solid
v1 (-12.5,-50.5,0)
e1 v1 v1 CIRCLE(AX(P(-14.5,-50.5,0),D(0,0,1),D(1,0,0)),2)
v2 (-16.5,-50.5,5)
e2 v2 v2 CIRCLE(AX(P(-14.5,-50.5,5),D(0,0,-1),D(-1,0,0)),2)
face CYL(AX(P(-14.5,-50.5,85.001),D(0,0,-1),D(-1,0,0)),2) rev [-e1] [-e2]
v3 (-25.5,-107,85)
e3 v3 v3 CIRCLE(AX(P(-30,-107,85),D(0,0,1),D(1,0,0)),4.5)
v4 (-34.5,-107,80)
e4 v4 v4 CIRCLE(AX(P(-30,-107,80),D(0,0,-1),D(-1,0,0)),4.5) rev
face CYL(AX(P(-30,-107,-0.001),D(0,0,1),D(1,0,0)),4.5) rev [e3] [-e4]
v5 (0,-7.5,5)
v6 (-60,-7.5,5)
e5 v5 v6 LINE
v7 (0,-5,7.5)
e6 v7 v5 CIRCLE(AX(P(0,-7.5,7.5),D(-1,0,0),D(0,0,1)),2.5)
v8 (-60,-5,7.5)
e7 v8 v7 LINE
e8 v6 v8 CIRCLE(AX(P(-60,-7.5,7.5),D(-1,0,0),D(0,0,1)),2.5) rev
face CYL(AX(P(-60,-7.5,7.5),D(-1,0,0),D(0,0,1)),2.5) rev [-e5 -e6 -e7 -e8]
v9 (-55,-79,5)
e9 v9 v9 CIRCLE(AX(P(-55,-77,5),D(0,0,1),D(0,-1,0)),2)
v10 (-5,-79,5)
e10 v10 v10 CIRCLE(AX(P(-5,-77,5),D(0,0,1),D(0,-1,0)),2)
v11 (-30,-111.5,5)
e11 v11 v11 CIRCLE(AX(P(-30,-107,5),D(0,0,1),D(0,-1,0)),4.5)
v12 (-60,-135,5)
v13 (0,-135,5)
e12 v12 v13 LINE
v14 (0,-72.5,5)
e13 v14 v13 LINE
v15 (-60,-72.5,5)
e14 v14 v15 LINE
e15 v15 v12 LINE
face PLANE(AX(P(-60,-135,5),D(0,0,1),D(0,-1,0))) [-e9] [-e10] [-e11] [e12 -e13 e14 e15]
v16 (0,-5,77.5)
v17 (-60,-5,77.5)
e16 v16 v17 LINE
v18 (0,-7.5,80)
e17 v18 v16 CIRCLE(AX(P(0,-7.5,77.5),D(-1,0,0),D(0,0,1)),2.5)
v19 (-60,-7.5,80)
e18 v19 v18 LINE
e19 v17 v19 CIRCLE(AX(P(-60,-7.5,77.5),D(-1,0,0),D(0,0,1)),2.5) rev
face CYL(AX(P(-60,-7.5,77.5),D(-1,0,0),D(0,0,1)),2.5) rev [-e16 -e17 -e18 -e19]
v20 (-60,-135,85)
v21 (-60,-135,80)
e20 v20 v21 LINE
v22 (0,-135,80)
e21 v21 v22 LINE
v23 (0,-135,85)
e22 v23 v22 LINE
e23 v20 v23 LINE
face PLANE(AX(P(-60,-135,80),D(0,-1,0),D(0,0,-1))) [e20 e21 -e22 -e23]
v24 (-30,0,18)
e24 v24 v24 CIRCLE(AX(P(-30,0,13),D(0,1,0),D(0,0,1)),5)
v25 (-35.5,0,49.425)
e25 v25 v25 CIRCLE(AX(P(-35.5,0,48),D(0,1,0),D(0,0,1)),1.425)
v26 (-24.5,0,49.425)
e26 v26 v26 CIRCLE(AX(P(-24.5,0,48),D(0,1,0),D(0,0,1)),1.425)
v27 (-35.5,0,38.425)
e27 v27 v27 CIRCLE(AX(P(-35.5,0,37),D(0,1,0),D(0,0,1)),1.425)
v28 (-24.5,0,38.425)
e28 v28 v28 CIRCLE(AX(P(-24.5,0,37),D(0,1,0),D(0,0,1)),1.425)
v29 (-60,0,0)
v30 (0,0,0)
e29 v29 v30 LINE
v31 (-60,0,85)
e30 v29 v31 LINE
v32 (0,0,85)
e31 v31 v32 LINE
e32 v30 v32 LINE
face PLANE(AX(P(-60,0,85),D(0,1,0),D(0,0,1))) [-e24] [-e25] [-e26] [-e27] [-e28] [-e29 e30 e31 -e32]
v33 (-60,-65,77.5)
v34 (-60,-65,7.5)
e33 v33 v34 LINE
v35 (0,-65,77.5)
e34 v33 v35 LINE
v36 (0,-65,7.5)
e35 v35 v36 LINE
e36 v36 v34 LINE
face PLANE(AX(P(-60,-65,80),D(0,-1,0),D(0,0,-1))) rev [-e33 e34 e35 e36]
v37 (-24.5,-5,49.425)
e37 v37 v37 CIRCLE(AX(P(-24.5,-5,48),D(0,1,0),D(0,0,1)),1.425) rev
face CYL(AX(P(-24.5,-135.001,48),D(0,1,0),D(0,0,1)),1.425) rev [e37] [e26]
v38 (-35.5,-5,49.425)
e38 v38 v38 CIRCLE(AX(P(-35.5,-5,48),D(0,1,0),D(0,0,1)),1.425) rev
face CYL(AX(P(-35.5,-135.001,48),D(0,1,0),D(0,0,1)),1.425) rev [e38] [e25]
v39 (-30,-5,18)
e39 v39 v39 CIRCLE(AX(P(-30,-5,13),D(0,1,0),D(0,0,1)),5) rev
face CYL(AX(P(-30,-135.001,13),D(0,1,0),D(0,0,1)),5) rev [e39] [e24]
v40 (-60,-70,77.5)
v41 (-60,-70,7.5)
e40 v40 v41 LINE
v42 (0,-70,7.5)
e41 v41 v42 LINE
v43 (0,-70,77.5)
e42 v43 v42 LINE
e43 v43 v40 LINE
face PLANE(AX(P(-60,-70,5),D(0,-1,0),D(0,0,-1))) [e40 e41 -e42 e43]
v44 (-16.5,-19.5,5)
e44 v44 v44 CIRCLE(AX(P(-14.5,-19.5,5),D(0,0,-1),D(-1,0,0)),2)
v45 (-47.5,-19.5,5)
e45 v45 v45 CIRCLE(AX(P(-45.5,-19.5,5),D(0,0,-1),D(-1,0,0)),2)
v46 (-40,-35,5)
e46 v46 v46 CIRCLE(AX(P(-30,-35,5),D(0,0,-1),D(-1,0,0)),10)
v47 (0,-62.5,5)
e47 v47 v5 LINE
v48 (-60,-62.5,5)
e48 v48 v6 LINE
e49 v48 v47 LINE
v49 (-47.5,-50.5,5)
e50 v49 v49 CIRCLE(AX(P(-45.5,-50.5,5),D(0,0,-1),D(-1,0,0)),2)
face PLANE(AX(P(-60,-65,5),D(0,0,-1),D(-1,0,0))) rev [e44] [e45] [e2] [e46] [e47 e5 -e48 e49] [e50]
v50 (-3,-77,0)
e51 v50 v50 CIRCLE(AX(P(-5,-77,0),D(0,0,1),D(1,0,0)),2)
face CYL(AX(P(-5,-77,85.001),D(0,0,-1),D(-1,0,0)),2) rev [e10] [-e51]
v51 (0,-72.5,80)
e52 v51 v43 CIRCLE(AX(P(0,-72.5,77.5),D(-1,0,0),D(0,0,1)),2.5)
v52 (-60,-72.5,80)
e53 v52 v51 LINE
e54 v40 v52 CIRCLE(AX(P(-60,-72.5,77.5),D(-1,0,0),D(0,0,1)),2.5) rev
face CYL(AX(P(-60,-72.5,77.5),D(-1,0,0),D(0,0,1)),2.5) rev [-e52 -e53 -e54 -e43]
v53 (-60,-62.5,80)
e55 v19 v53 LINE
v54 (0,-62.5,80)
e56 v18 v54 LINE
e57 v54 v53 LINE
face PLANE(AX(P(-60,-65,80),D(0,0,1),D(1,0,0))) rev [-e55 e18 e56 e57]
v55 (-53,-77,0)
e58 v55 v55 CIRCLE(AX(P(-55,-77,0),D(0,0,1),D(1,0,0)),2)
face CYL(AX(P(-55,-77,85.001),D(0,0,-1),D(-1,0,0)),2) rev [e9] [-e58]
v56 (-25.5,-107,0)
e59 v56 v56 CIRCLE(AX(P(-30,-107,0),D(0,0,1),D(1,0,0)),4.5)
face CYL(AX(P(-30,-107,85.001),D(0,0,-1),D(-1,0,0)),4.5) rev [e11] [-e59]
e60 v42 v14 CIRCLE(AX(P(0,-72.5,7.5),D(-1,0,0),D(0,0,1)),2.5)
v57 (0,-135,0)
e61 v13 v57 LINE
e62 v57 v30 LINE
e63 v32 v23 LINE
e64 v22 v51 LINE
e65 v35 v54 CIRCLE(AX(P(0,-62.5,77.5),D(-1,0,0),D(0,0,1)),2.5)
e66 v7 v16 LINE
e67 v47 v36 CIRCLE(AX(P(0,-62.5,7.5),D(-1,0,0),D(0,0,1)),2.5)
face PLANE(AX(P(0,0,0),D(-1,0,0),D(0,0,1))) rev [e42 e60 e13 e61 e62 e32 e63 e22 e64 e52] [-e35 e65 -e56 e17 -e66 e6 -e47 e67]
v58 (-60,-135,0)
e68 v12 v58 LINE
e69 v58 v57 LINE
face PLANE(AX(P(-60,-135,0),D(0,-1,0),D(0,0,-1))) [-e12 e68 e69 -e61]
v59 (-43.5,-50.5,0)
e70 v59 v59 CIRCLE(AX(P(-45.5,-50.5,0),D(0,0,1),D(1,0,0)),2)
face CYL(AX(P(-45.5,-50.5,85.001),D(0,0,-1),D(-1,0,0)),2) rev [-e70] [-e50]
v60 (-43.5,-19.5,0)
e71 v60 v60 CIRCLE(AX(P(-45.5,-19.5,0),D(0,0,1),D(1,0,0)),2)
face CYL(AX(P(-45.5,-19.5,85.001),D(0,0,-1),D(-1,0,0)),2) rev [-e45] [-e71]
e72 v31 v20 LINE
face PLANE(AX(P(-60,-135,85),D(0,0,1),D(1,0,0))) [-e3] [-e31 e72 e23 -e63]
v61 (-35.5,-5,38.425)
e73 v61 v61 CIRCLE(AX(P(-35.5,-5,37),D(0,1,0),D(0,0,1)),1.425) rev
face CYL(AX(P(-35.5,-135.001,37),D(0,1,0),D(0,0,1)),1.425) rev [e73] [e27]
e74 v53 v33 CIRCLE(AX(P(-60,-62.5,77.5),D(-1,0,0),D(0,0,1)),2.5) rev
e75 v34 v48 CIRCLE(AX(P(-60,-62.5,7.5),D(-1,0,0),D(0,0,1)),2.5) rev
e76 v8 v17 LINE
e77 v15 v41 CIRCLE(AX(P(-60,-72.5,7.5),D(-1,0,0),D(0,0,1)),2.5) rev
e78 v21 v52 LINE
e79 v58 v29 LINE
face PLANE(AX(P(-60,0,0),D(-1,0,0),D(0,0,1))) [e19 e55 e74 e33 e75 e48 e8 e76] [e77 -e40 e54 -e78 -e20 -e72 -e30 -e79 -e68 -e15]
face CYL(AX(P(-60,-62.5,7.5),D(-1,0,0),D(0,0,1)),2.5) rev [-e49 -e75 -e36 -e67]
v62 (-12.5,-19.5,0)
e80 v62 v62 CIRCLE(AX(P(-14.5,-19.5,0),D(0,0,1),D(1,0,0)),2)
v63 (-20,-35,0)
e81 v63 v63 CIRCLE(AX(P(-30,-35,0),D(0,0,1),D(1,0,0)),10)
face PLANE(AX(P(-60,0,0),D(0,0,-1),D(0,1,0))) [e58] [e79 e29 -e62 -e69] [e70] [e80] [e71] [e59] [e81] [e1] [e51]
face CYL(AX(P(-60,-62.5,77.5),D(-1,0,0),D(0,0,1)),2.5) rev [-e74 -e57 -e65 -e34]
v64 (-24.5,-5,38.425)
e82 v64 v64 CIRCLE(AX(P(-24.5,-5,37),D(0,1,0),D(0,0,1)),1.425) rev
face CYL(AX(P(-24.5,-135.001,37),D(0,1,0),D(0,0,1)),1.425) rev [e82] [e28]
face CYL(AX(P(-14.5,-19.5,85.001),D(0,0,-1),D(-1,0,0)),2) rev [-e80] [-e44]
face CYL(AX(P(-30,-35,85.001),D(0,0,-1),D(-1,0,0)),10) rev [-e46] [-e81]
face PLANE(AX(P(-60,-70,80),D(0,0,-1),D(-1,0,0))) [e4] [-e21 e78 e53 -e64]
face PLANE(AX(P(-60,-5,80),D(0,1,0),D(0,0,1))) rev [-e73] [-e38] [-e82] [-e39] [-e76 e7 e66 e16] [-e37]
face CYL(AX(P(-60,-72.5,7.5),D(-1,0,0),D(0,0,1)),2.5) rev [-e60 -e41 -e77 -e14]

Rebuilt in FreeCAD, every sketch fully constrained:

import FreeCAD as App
import Part
import Sketcher
from FreeCAD import Vector


def edges_at(feature, points):
    """Names of the edges that pass closest to the given points."""
    edges = feature.Shape.Edges
    near = lambda p: min(range(len(edges)), key=lambda i: edges[i].distToShape(Part.Vertex(*p))[0])
    return sorted({f"Edge{near(p) + 1}" for p in points})


def add_polygon(sketch, points):
    """Adds a closed chain of lines whose ends are joined by coincident constraints."""
    first, n = sketch.GeometryCount, len(points)
    for a, b in zip(points, points[1:] + points[:1]):
        sketch.addGeometry(Part.LineSegment(App.Vector(*a, 0), App.Vector(*b, 0)), False)
    for i in range(n):
        sketch.addConstraint(Sketcher.Constraint("Coincident", first + i, 2, first + (i + 1) % n, 1))

doc = App.newDocument("Part")
body = doc.addObject("PartDesign::Body", "Body")

# Sketch on YZ plane
sketch1 = body.newObject("Sketcher::SketchObject", "Sketch")
sketch1.AttachmentSupport = (doc.getObject("YZ_Plane"), [""])
sketch1.MapMode = "FlatFace"
add_polygon(sketch1, [(-135, 0), (0, 0), (0, 85), (-135, 85), (-135, 80), (-70, 80), (-70, 5), (-135, 5)])  # lines 0-7
sketch1.addConstraint([
    Sketcher.Constraint("Horizontal", 0),
    Sketcher.Constraint("Vertical", 1),
    Sketcher.Constraint("Horizontal", 2),
    Sketcher.Constraint("Vertical", 3),
    Sketcher.Constraint("Horizontal", 4),
    Sketcher.Constraint("Vertical", 5),
    Sketcher.Constraint("Horizontal", 6),
    Sketcher.Constraint("Vertical", 7),
    Sketcher.Constraint("Coincident", 0, 2, -1, 1),
    Sketcher.Constraint("Vertical", 3, 2, 6, 2),
    Sketcher.Constraint("Equal", 3, 7),
    Sketcher.Constraint("DistanceX", 0, 1, 0, 2, 135.0),
    Sketcher.Constraint("DistanceX", 4, 1, 4, 2, 65.0),
    Sketcher.Constraint("DistanceY", 1, 1, 1, 2, 85.0),
    Sketcher.Constraint("DistanceY", 3, 2, 3, 1, 5.0),
])
pad1 = body.newObject("PartDesign::Pad", "Pad")
pad1.Profile = sketch1
pad1.Length = 60
pad1.Reversed = True

# Sketch on YZ plane
sketch2 = body.newObject("Sketcher::SketchObject", "Sketch001")
sketch2.AttachmentSupport = (doc.getObject("YZ_Plane"), [""])
sketch2.MapMode = "FlatFace"
add_polygon(sketch2, [(-5, 80), (-65, 80), (-65, 5), (-5, 5)])  # lines 0-3
sketch2.addConstraint([
    Sketcher.Constraint("Horizontal", 0),
    Sketcher.Constraint("Vertical", 1),
    Sketcher.Constraint("Horizontal", 2),
    Sketcher.Constraint("Vertical", 3),
    Sketcher.Constraint("DistanceX", 0, 2, 0, 1, 60.0),
    Sketcher.Constraint("DistanceY", 1, 2, 1, 1, 75.0),
    Sketcher.Constraint("DistanceX", 0, 2, -1, 1, 65.0),
    Sketcher.Constraint("DistanceY", -1, 1, 0, 2, 80.0),
])
pocket1 = body.newObject("PartDesign::Pocket", "Pocket")
pocket1.Profile = sketch2
pocket1.Length = 60

# Sketch on XZ plane
sketch3 = body.newObject("Sketcher::SketchObject", "Sketch002")
sketch3.AttachmentSupport = (doc.getObject("XZ_Plane"), [""])
sketch3.MapMode = "FlatFace"
sketch3.addGeometry(Part.Circle(Vector(-35.5, 37, 0), Vector(0, 0, 1), 1.425), False)
sketch3.addConstraint([
    Sketcher.Constraint("Diameter", 0, 2.85),
    Sketcher.Constraint("DistanceY", -1, 1, 0, 3, 37.0),
    Sketcher.Constraint("DistanceX", 0, 3, -1, 1, 35.5),
])
pocket2 = body.newObject("PartDesign::Pocket", "Pocket001")
pocket2.Profile = sketch3
pocket2.Type = "UpToFirst"
pocket2.Reversed = True

# Sketch on XZ plane
sketch4 = body.newObject("Sketcher::SketchObject", "Sketch003")
sketch4.AttachmentSupport = (doc.getObject("XZ_Plane"), [""])
sketch4.MapMode = "FlatFace"
sketch4.addGeometry(Part.Circle(Vector(-24.5, 37, 0), Vector(0, 0, 1), 1.425), False)
sketch4.addConstraint([
    Sketcher.Constraint("Diameter", 0, 2.85),
    Sketcher.Constraint("DistanceY", -1, 1, 0, 3, 37.0),
    Sketcher.Constraint("DistanceX", 0, 3, -1, 1, 24.5),
])
pocket3 = body.newObject("PartDesign::Pocket", "Pocket002")
pocket3.Profile = sketch4
pocket3.Type = "UpToFirst"
pocket3.Reversed = True

# Sketch on XZ plane
sketch5 = body.newObject("Sketcher::SketchObject", "Sketch004")
sketch5.AttachmentSupport = (doc.getObject("XZ_Plane"), [""])
sketch5.MapMode = "FlatFace"
sketch5.addGeometry(Part.Circle(Vector(-24.5, 48, 0), Vector(0, 0, 1), 1.425), False)
sketch5.addConstraint([
    Sketcher.Constraint("Diameter", 0, 2.85),
    Sketcher.Constraint("DistanceY", -1, 1, 0, 3, 48.0),
    Sketcher.Constraint("DistanceX", 0, 3, -1, 1, 24.5),
])
pocket4 = body.newObject("PartDesign::Pocket", "Pocket003")
pocket4.Profile = sketch5
pocket4.Type = "UpToFirst"
pocket4.Reversed = True

# Sketch on XZ plane
sketch6 = body.newObject("Sketcher::SketchObject", "Sketch005")
sketch6.AttachmentSupport = (doc.getObject("XZ_Plane"), [""])
sketch6.MapMode = "FlatFace"
sketch6.addGeometry(Part.Circle(Vector(-35.5, 48, 0), Vector(0, 0, 1), 1.425), False)
sketch6.addConstraint([
    Sketcher.Constraint("Diameter", 0, 2.85),
    Sketcher.Constraint("DistanceY", -1, 1, 0, 3, 48.0),
    Sketcher.Constraint("DistanceX", 0, 3, -1, 1, 35.5),
])
pocket5 = body.newObject("PartDesign::Pocket", "Pocket004")
pocket5.Profile = sketch6
pocket5.Type = "UpToFirst"
pocket5.Reversed = True

# Sketch on XZ plane
sketch7 = body.newObject("Sketcher::SketchObject", "Sketch006")
sketch7.AttachmentSupport = (doc.getObject("XZ_Plane"), [""])
sketch7.MapMode = "FlatFace"
sketch7.addGeometry(Part.Circle(Vector(-30, 13, 0), Vector(0, 0, 1), 5), False)
sketch7.addConstraint([
    Sketcher.Constraint("Diameter", 0, 10.0),
    Sketcher.Constraint("DistanceX", 0, 3, -1, 1, 30.0),
    Sketcher.Constraint("DistanceY", -1, 1, 0, 3, 13.0),
])
pocket6 = body.newObject("PartDesign::Pocket", "Pocket005")
pocket6.Profile = sketch7
pocket6.Type = "UpToFirst"
pocket6.Reversed = True

# Sketch on XY plane
sketch8 = body.newObject("Sketcher::SketchObject", "Sketch007")
sketch8.AttachmentSupport = (doc.getObject("XY_Plane"), [""])
sketch8.MapMode = "FlatFace"
sketch8.addGeometry(Part.Circle(Vector(-30, -107, 0), Vector(0, 0, 1), 4.5), False)
sketch8.addConstraint([
    Sketcher.Constraint("Diameter", 0, 9.0),
    Sketcher.Constraint("DistanceX", 0, 3, -1, 1, 30.0),
    Sketcher.Constraint("DistanceY", 0, 3, -1, 1, 107.0),
])
pocket7 = body.newObject("PartDesign::Pocket", "Pocket006")
pocket7.Profile = sketch8
pocket7.Type = "UpToFirst"
pocket7.Reversed = True

# Sketch on XY plane
sketch9 = body.newObject("Sketcher::SketchObject", "Sketch008")
sketch9.AttachmentSupport = (doc.getObject("XY_Plane"), [""])
sketch9.MapMode = "FlatFace"
sketch9.addGeometry(Part.Circle(Vector(-30, -35, 0), Vector(0, 0, 1), 10), False)
sketch9.addConstraint([
    Sketcher.Constraint("Diameter", 0, 20.0),
    Sketcher.Constraint("DistanceX", 0, 3, -1, 1, 30.0),
    Sketcher.Constraint("DistanceY", 0, 3, -1, 1, 35.0),
])
pocket8 = body.newObject("PartDesign::Pocket", "Pocket007")
pocket8.Profile = sketch9
pocket8.Type = "UpToFirst"
pocket8.Reversed = True

# Sketch on XY plane
sketch10 = body.newObject("Sketcher::SketchObject", "Sketch009")
sketch10.AttachmentSupport = (doc.getObject("XY_Plane"), [""])
sketch10.MapMode = "FlatFace"
sketch10.addGeometry(Part.Circle(Vector(-5, -77, 0), Vector(0, 0, 1), 2), False)
sketch10.addConstraint([
    Sketcher.Constraint("Diameter", 0, 4.0),
    Sketcher.Constraint("DistanceX", 0, 3, -1, 1, 5.0),
    Sketcher.Constraint("DistanceY", 0, 3, -1, 1, 77.0),
])
pocket9 = body.newObject("PartDesign::Pocket", "Pocket008")
pocket9.Profile = sketch10
pocket9.Type = "UpToFirst"
pocket9.Reversed = True

# Sketch on XY plane
sketch11 = body.newObject("Sketcher::SketchObject", "Sketch010")
sketch11.AttachmentSupport = (doc.getObject("XY_Plane"), [""])
sketch11.MapMode = "FlatFace"
sketch11.addGeometry(Part.Circle(Vector(-55, -77, 0), Vector(0, 0, 1), 2), False)
sketch11.addConstraint([
    Sketcher.Constraint("Diameter", 0, 4.0),
    Sketcher.Constraint("DistanceX", 0, 3, -1, 1, 55.0),
    Sketcher.Constraint("DistanceY", 0, 3, -1, 1, 77.0),
])
pocket10 = body.newObject("PartDesign::Pocket", "Pocket009")
pocket10.Profile = sketch11
pocket10.Type = "UpToFirst"
pocket10.Reversed = True

# Sketch on XY plane
sketch12 = body.newObject("Sketcher::SketchObject", "Sketch011")
sketch12.AttachmentSupport = (doc.getObject("XY_Plane"), [""])
sketch12.MapMode = "FlatFace"
sketch12.addGeometry(Part.Circle(Vector(-14.5, -19.5, 0), Vector(0, 0, 1), 2), False)
sketch12.addConstraint([
    Sketcher.Constraint("Diameter", 0, 4.0),
    Sketcher.Constraint("DistanceX", 0, 3, -1, 1, 14.5),
    Sketcher.Constraint("DistanceY", 0, 3, -1, 1, 19.5),
])
pocket11 = body.newObject("PartDesign::Pocket", "Pocket010")
pocket11.Profile = sketch12
pocket11.Type = "UpToFirst"
pocket11.Reversed = True

# Sketch on XY plane
sketch13 = body.newObject("Sketcher::SketchObject", "Sketch012")
sketch13.AttachmentSupport = (doc.getObject("XY_Plane"), [""])
sketch13.MapMode = "FlatFace"
sketch13.addGeometry(Part.Circle(Vector(-45.5, -19.5, 0), Vector(0, 0, 1), 2), False)
sketch13.addConstraint([
    Sketcher.Constraint("Diameter", 0, 4.0),
    Sketcher.Constraint("DistanceX", 0, 3, -1, 1, 45.5),
    Sketcher.Constraint("DistanceY", 0, 3, -1, 1, 19.5),
])
pocket12 = body.newObject("PartDesign::Pocket", "Pocket011")
pocket12.Profile = sketch13
pocket12.Type = "UpToFirst"
pocket12.Reversed = True

# Sketch on XY plane
sketch14 = body.newObject("Sketcher::SketchObject", "Sketch013")
sketch14.AttachmentSupport = (doc.getObject("XY_Plane"), [""])
sketch14.MapMode = "FlatFace"
sketch14.addGeometry(Part.Circle(Vector(-45.5, -50.5, 0), Vector(0, 0, 1), 2), False)
sketch14.addConstraint([
    Sketcher.Constraint("Diameter", 0, 4.0),
    Sketcher.Constraint("DistanceX", 0, 3, -1, 1, 45.5),
    Sketcher.Constraint("DistanceY", 0, 3, -1, 1, 50.5),
])
pocket13 = body.newObject("PartDesign::Pocket", "Pocket012")
pocket13.Profile = sketch14
pocket13.Type = "UpToFirst"
pocket13.Reversed = True

# Sketch on XY plane
sketch15 = body.newObject("Sketcher::SketchObject", "Sketch014")
sketch15.AttachmentSupport = (doc.getObject("XY_Plane"), [""])
sketch15.MapMode = "FlatFace"
sketch15.addGeometry(Part.Circle(Vector(-14.5, -50.5, 0), Vector(0, 0, 1), 2), False)
sketch15.addConstraint([
    Sketcher.Constraint("Diameter", 0, 4.0),
    Sketcher.Constraint("DistanceX", 0, 3, -1, 1, 14.5),
    Sketcher.Constraint("DistanceY", 0, 3, -1, 1, 50.5),
])
pocket14 = body.newObject("PartDesign::Pocket", "Pocket013")
pocket14.Profile = sketch15
pocket14.Type = "UpToFirst"
pocket14.Reversed = True
doc.recompute()

fillet = body.newObject("PartDesign::Fillet", "Fillet")
fillet.Base = (pocket14, edges_at(pocket14, [(-30, -70, 80)]))
fillet.Radius = 2.5
doc.recompute()

fillet2 = body.newObject("PartDesign::Fillet", "Fillet001")
fillet2.Base = (fillet, edges_at(fillet, [(-30, -70, 5)]))
fillet2.Radius = 2.5
doc.recompute()

fillet3 = body.newObject("PartDesign::Fillet", "Fillet002")
fillet3.Base = (fillet2, edges_at(fillet2, [(-30, -65, 80)]))
fillet3.Radius = 2.5
doc.recompute()

fillet4 = body.newObject("PartDesign::Fillet", "Fillet003")
fillet4.Base = (fillet3, edges_at(fillet3, [(-30, -65, 5)]))
fillet4.Radius = 2.5
doc.recompute()

fillet5 = body.newObject("PartDesign::Fillet", "Fillet004")
fillet5.Base = (fillet4, edges_at(fillet4, [(-30, -5, 5)]))
fillet5.Radius = 2.5
doc.recompute()

fillet6 = body.newObject("PartDesign::Fillet", "Fillet005")
fillet6.Base = (fillet5, edges_at(fillet5, [(-30, -5, 80)]))
fillet6.Radius = 2.5

# Sketch on XY plane
sketch16 = body.newObject("Sketcher::SketchObject", "Sketch015")
sketch16.AttachmentSupport = (doc.getObject("XY_Plane"), [""])
sketch16.MapMode = "FlatFace"
sketch16.AttachmentOffset = App.Placement(Vector(0, 0, 85), App.Rotation())
sketch16.addGeometry(Part.Circle(Vector(-30, -107, 0), Vector(0, 0, 1), 4.5), False)
sketch16.addConstraint([
    Sketcher.Constraint("Diameter", 0, 9.0),
    Sketcher.Constraint("DistanceX", 0, 3, -1, 1, 30.0),
    Sketcher.Constraint("DistanceY", 0, 3, -1, 1, 107.0),
])
pocket15 = body.newObject("PartDesign::Pocket", "Pocket014")
pocket15.Profile = sketch16
pocket15.Type = "UpToFirst"

doc.recompute()
